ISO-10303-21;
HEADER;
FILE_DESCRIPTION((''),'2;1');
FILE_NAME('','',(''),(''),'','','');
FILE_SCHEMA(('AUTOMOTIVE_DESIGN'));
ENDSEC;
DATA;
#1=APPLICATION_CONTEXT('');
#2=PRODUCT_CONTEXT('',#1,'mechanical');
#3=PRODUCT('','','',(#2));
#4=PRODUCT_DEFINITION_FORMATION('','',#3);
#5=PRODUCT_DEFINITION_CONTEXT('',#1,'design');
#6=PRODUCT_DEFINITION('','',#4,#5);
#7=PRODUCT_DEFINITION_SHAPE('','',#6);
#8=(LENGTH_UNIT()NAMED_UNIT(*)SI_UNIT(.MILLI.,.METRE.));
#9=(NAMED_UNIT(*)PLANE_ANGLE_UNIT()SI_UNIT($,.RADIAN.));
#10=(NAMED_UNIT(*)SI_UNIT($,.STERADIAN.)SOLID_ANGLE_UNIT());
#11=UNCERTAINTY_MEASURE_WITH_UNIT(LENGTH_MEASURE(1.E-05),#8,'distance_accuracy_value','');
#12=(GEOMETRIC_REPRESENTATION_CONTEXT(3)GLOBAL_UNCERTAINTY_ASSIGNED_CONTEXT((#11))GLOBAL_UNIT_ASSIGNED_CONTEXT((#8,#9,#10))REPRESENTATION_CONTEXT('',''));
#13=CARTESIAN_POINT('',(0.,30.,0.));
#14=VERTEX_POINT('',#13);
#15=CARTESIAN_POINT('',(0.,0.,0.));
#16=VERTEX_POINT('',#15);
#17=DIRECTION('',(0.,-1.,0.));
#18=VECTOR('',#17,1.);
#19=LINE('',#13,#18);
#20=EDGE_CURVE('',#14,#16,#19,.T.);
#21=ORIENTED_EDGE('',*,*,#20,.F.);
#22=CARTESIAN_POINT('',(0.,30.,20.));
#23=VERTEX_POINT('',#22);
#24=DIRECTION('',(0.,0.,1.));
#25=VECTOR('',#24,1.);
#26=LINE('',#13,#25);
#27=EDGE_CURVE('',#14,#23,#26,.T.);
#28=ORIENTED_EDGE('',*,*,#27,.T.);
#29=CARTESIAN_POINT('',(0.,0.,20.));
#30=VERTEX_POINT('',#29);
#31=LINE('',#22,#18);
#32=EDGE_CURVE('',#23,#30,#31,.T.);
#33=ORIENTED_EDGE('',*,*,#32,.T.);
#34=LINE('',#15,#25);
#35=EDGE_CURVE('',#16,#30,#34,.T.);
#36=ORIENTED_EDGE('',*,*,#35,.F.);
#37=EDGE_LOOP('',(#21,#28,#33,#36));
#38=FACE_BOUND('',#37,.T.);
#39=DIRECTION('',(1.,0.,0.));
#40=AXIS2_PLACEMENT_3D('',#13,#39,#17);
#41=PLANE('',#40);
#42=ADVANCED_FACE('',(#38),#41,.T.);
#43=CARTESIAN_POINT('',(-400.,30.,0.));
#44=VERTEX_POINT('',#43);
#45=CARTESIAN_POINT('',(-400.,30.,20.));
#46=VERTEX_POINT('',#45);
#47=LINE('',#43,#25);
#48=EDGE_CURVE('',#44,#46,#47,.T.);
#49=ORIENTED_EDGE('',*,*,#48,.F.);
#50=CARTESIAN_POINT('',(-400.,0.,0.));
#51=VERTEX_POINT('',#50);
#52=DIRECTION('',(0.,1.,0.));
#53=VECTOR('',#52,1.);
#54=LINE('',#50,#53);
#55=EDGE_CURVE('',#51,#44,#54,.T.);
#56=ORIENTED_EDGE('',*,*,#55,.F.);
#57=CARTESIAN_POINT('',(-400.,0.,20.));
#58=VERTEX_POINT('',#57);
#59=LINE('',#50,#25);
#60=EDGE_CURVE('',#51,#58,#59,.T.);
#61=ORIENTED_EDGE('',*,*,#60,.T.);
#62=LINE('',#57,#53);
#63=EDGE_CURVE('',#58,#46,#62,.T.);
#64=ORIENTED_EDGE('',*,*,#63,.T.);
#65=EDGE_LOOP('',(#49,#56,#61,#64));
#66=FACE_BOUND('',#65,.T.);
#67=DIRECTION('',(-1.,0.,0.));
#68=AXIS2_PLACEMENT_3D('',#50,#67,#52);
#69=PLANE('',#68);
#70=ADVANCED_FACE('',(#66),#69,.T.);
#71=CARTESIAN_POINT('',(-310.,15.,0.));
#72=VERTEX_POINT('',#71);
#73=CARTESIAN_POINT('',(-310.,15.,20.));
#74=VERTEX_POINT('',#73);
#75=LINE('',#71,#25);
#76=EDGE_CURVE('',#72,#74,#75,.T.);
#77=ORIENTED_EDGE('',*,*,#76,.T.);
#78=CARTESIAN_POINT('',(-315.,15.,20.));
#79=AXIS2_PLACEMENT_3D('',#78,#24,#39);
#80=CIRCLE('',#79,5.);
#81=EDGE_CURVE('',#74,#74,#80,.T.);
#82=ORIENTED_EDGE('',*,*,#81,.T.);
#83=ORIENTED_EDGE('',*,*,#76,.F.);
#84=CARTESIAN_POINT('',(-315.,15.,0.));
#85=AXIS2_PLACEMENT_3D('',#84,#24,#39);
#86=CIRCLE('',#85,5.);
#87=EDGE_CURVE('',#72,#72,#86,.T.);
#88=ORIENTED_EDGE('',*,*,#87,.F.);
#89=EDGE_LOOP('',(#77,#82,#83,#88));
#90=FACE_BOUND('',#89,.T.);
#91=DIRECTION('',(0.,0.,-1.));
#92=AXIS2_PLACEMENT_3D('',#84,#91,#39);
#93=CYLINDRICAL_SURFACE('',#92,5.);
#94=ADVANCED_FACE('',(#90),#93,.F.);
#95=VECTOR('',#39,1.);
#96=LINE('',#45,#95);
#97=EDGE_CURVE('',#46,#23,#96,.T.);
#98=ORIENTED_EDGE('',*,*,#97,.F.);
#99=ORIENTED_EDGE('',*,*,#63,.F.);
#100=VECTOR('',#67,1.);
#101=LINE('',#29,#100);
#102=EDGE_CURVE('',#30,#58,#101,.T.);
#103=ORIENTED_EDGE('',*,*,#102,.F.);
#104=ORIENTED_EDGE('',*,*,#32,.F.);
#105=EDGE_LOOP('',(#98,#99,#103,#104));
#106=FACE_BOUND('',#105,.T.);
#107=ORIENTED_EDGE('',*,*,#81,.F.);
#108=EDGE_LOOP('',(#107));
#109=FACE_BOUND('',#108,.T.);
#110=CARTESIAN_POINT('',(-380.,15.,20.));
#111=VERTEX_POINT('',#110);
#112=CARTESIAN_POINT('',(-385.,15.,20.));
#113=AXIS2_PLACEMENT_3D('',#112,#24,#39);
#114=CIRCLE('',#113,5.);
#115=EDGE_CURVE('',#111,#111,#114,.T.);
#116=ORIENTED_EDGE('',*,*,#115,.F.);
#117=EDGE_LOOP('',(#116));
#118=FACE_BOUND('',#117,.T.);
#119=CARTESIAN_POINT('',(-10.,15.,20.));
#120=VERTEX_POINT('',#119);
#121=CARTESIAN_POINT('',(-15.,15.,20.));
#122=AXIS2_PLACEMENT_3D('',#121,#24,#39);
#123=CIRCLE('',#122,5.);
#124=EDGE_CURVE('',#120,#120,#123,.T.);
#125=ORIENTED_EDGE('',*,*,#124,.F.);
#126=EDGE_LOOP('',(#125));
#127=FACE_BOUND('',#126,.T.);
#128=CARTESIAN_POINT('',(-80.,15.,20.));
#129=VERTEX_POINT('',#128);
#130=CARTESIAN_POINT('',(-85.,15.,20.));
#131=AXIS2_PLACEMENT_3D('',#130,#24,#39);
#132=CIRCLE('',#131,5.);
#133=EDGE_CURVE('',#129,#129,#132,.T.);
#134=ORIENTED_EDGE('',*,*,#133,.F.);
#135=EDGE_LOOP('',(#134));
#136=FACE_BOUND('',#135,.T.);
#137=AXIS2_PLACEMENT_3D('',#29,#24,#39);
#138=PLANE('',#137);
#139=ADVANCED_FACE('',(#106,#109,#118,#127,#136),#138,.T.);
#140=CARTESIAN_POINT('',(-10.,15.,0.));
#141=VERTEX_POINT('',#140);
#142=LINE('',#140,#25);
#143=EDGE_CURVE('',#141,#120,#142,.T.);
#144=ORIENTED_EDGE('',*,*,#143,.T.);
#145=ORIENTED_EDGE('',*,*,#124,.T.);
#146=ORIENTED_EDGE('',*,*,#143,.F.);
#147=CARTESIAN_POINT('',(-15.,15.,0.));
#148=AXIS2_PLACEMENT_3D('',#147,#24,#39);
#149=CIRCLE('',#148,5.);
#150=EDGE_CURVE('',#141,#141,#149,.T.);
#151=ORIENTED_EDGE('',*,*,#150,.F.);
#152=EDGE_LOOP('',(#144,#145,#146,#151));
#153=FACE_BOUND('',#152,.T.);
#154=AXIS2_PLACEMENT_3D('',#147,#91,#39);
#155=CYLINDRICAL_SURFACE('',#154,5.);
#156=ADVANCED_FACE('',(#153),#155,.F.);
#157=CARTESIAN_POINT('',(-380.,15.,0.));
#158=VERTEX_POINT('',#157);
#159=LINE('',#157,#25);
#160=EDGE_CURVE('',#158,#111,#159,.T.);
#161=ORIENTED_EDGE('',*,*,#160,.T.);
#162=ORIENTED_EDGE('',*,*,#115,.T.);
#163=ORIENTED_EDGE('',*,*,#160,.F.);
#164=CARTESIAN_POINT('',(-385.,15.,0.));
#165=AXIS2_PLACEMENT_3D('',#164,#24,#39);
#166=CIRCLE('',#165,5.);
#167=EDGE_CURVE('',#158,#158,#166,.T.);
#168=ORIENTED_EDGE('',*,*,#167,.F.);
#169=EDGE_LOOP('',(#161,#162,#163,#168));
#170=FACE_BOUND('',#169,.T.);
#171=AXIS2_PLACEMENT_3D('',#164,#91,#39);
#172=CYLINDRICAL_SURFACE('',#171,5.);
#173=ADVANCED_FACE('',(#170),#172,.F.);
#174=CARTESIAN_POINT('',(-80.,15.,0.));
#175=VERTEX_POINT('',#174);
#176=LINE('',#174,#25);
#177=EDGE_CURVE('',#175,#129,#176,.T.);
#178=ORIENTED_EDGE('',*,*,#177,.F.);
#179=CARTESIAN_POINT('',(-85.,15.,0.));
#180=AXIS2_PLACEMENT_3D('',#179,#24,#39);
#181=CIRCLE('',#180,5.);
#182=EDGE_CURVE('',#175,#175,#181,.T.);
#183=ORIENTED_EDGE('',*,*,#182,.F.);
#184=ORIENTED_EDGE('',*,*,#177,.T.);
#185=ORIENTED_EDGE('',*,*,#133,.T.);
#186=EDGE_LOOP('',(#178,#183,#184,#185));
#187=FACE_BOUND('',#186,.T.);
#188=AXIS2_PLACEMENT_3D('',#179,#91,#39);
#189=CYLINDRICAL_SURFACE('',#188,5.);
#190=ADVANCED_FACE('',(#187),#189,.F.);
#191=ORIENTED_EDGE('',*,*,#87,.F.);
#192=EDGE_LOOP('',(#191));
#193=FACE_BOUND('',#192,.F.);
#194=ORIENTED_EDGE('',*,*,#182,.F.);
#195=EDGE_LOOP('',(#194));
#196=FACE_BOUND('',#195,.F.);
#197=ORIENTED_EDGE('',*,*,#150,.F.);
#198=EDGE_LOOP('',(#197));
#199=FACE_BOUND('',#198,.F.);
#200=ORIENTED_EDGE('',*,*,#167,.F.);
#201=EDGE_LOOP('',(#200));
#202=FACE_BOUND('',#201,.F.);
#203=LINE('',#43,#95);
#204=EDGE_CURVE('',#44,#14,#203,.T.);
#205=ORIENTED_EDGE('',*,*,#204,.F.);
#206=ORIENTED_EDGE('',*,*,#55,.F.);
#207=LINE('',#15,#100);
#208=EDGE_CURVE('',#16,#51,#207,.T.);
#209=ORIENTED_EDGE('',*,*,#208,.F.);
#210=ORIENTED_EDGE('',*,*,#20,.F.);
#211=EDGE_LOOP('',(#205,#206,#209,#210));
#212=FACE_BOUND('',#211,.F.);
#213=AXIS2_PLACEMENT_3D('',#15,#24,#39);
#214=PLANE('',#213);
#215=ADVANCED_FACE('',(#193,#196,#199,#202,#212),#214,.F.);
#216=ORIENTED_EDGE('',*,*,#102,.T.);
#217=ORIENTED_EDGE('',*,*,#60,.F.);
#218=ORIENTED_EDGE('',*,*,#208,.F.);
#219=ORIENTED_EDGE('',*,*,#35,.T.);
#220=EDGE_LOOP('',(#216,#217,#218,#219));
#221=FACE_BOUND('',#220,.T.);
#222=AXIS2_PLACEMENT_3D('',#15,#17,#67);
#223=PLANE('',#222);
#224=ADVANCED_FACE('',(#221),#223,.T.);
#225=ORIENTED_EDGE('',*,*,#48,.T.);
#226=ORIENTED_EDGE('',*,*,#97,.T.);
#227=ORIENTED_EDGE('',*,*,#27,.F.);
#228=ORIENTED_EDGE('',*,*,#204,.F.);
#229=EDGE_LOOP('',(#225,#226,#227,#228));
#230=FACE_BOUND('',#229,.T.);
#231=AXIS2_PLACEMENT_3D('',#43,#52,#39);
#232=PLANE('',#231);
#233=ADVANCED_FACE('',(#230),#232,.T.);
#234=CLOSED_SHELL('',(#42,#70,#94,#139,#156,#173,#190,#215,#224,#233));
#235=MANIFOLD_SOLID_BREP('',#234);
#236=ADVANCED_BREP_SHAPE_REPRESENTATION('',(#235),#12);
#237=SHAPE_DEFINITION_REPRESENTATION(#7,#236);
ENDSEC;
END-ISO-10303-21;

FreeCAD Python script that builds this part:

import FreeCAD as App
import Part
import Sketcher
from FreeCAD import Vector
Q = App.Units.Quantity

doc = App.newDocument("Part")
body = doc.addObject("PartDesign::Body", "Body")

sketch1 = body.newObject("Sketcher::SketchObject", "Sketch")
sketch1.AttachmentSupport = (doc.getObject("XY_Plane"), [""])
sketch1.MapMode = "FlatFace"
sketch1.addGeometry([
    Part.LineSegment(Vector(-400, 0, 0), Vector(0, 0, 0)),
    Part.LineSegment(Vector(0, 0, 0), Vector(0, 30, 0)),
    Part.LineSegment(Vector(0, 30, 0), Vector(-400, 30, 0)),
    Part.LineSegment(Vector(-400, 30, 0), Vector(-400, 0, 0)),
    Part.Circle(Vector(-385, 15, 0), Vector(0, 0, 1), 5),
    Part.Circle(Vector(-315, 15, 0), Vector(0, 0, 1), 5),
    Part.Circle(Vector(-85, 15, 0), Vector(0, 0, 1), 5),
    Part.Circle(Vector(-15, 15, 0), Vector(0, 0, 1), 5),
], False)
sketch1.addConstraint([
    Sketcher.Constraint("Coincident", 0, 2, 1, 1),
    Sketcher.Constraint("Coincident", 1, 2, 2, 1),
    Sketcher.Constraint("Coincident", 2, 2, 3, 1),
    Sketcher.Constraint("Coincident", 3, 2, 0, 1),
    Sketcher.Constraint("Horizontal", 0),
    Sketcher.Constraint("Vertical", 1),
    Sketcher.Constraint("Horizontal", 2),
    Sketcher.Constraint("Vertical", 3),
    Sketcher.Constraint("Coincident", 0, 2, -1, 1),
    Sketcher.Constraint("Equal", 4, 5),
    Sketcher.Constraint("Equal", 5, 6),
    Sketcher.Constraint("Equal", 6, 7),
    Sketcher.Constraint("Horizontal", 4, 3, 5, 3),
    Sketcher.Constraint("Horizontal", 5, 3, 6, 3),
    Sketcher.Constraint("Horizontal", 6, 3, 7, 3),
    Sketcher.Constraint("Diameter", 4, Q("10 mm")),
    Sketcher.Constraint("DistanceX", 0, 1, 0, 2, Q("400 mm")),
    Sketcher.Constraint("DistanceY", 1, 1, 1, 2, Q("30 mm")),
    Sketcher.Constraint("DistanceY", -1, 1, 4, 3, Q("15 mm")),
    Sketcher.Constraint("DistanceX", 7, 3, -1, 1, Q("15 mm")),
    Sketcher.Constraint("DistanceX", 4, 3, 5, 3, Q("70 mm")),
    Sketcher.Constraint("DistanceX", 6, 3, 7, 3, Q("70 mm")),
    Sketcher.Constraint("DistanceX", 2, 2, 4, 3, Q("15 mm")),
])
pad1 = body.newObject("PartDesign::Pad", "Pad")
pad1.Profile = sketch1
pad1.Length = 20

doc.recompute()
